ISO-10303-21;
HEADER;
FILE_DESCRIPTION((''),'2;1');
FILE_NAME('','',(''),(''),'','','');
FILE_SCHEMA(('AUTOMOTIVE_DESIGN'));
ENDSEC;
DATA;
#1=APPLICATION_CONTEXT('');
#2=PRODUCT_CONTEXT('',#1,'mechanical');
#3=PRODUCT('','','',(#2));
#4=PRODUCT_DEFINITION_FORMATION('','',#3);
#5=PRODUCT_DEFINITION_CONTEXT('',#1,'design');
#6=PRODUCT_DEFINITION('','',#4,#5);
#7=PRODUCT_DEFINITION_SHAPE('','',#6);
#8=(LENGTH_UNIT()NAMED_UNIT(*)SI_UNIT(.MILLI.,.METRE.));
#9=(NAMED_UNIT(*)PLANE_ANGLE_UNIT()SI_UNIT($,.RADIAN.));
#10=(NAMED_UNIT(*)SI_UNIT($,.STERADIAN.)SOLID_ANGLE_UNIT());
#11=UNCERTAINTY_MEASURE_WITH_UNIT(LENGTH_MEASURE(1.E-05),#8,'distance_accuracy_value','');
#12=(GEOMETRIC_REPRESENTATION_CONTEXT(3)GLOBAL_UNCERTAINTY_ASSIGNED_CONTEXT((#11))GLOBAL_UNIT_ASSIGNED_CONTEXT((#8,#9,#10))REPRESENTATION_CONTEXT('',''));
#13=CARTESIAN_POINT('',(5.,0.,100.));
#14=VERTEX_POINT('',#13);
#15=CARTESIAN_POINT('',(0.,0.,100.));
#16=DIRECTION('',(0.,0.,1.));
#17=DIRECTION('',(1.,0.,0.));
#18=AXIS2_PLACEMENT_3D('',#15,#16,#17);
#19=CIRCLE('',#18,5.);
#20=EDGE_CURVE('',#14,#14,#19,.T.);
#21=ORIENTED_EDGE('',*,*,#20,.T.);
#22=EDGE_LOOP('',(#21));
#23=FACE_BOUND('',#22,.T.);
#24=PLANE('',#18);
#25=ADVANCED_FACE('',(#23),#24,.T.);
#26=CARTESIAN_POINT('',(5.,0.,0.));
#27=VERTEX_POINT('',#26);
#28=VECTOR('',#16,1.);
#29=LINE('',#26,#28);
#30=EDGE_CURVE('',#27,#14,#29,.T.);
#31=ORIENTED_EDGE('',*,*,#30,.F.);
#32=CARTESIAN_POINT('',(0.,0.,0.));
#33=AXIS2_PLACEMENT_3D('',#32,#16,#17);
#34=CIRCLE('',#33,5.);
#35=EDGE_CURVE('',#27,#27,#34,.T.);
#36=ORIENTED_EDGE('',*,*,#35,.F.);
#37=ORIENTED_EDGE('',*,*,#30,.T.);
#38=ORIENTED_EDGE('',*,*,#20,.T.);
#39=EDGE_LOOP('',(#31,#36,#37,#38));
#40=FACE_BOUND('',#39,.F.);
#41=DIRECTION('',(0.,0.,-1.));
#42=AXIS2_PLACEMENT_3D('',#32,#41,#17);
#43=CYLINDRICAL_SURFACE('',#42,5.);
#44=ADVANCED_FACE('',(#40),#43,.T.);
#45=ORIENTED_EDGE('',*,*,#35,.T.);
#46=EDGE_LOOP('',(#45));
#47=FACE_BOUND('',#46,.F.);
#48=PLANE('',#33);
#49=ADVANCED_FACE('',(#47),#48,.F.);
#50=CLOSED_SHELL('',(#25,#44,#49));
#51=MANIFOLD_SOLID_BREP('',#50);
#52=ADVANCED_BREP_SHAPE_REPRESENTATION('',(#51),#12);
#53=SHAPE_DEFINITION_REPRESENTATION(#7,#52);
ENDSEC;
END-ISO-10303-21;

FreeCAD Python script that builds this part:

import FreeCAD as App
import Part
import Sketcher
Q = App.Units.Quantity

doc = App.newDocument("Part")
body = doc.addObject("PartDesign::Body", "Body")

sketch1 = body.newObject("Sketcher::SketchObject", "Sketch")
sketch1.AttachmentSupport = (doc.getObject("XY_Plane"), [""])
sketch1.MapMode = "FlatFace"
sketch1.addGeometry(Part.Circle(App.Vector(0, 0, 0), App.Vector(0, 0, 1), 5), False)
sketch1.addConstraint([
    Sketcher.Constraint("Coincident", 0, 3, -1, 1),
    Sketcher.Constraint("Diameter", 0, Q("0.3937 in")),
])
pad1 = body.newObject("PartDesign::Pad", "Pad")
pad1.Profile = sketch1
pad1.Length = Q("3.9370079 in")

doc.recompute()
